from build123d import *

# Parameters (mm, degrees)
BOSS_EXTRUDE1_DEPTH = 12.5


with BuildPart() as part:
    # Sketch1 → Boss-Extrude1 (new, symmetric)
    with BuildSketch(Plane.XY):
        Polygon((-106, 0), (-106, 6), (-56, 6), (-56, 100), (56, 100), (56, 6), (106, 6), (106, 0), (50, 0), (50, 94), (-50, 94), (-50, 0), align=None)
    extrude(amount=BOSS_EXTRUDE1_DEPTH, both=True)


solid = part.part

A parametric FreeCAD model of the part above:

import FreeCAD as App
import Part
import Sketcher
Q = App.Units.Quantity

doc = App.newDocument("Part")
body = doc.addObject("PartDesign::Body", "Body")

sketch1 = body.newObject("Sketcher::SketchObject", "Sketch")
sketch1.AttachmentSupport = (doc.getObject("XY_Plane"), [""])
sketch1.MapMode = "FlatFace"
sketch1.addGeometry([
    Part.LineSegment(App.Vector(-106, 6, 0), App.Vector(-106, 0, 0)),
    Part.LineSegment(App.Vector(-106, 0, 0), App.Vector(-50, 0, 0)),
    Part.LineSegment(App.Vector(-50, 0, 0), App.Vector(-50, 94, 0)),
    Part.LineSegment(App.Vector(-50, 94, 0), App.Vector(50, 94, 0)),
    Part.LineSegment(App.Vector(50, 94, 0), App.Vector(50, 0, 0)),
    Part.LineSegment(App.Vector(50, 0, 0), App.Vector(106, 0, 0)),
    Part.LineSegment(App.Vector(106, 0, 0), App.Vector(106, 6, 0)),
    Part.LineSegment(App.Vector(106, 6, 0), App.Vector(56, 6, 0)),
    Part.LineSegment(App.Vector(56, 6, 0), App.Vector(56, 100, 0)),
    Part.LineSegment(App.Vector(56, 100, 0), App.Vector(-56, 100, 0)),
    Part.LineSegment(App.Vector(-56, 100, 0), App.Vector(-56, 6, 0)),
    Part.LineSegment(App.Vector(-56, 6, 0), App.Vector(-106, 6, 0)),
], False)
sketch1.addConstraint([
    Sketcher.Constraint("Coincident", 0, 2, 1, 1),
    Sketcher.Constraint("Coincident", 1, 2, 2, 1),
    Sketcher.Constraint("Coincident", 2, 2, 3, 1),
    Sketcher.Constraint("Coincident", 3, 2, 4, 1),
    Sketcher.Constraint("Coincident", 4, 2, 5, 1),
    Sketcher.Constraint("Coincident", 5, 2, 6, 1),
    Sketcher.Constraint("Coincident", 6, 2, 7, 1),
    Sketcher.Constraint("Coincident", 7, 2, 8, 1),
    Sketcher.Constraint("Coincident", 8, 2, 9, 1),
    Sketcher.Constraint("Coincident", 9, 2, 10, 1),
    Sketcher.Constraint("Coincident", 10, 2, 11, 1),
    Sketcher.Constraint("Coincident", 11, 2, 0, 1),
    Sketcher.Constraint("Vertical", 0),
    Sketcher.Constraint("Horizontal", 1),
    Sketcher.Constraint("Vertical", 2),
    Sketcher.Constraint("Horizontal", 3),
    Sketcher.Constraint("Vertical", 4),
    Sketcher.Constraint("Horizontal", 5),
    Sketcher.Constraint("Vertical", 6),
    Sketcher.Constraint("Horizontal", 7),
    Sketcher.Constraint("Vertical", 8),
    Sketcher.Constraint("Horizontal", 9),
    Sketcher.Constraint("Vertical", 10),
    Sketcher.Constraint("Horizontal", 11),
    Sketcher.Constraint("Symmetric", 1, 2, 4, 2, -1, 1),
    Sketcher.Constraint("Symmetric", 0, 2, 5, 2, -2),
    Sketcher.Constraint("Symmetric", 7, 2, 10, 2, -2),
    Sketcher.Constraint("Equal", 4, 8),
    Sketcher.Constraint("DistanceX", 1, 1, 1, 2, Q("56 mm")),
    Sketcher.Constraint("DistanceX", 3, 1, 3, 2, Q("100 mm")),
    Sketcher.Constraint("DistanceX", 7, 2, 7, 1, Q("50 mm")),
    Sketcher.Constraint("DistanceY", 0, 2, 0, 1, Q("6 mm")),
    Sketcher.Constraint("DistanceY", 2, 1, 2, 2, Q("94 mm")),
])
pad1 = body.newObject("PartDesign::Pad", "Pad")
pad1.Profile = sketch1
pad1.Length = 25
pad1.Midplane = True

doc.recompute()
